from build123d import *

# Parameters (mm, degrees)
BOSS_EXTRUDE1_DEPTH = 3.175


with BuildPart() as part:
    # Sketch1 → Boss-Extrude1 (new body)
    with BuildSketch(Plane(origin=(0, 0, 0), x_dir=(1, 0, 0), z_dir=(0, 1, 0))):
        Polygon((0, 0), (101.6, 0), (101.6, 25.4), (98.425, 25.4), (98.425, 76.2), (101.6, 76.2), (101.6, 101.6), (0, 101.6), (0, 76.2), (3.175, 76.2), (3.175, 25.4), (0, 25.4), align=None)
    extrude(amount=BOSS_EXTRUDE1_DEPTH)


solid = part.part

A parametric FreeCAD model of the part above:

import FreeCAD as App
import Part
import Sketcher
Q = App.Units.Quantity


def add_polygon(sketch, points):
    """Adds a closed chain of lines whose ends are joined by coincident constraints."""
    first, n = sketch.GeometryCount, len(points)
    for a, b in zip(points, points[1:] + points[:1]):
        sketch.addGeometry(Part.LineSegment(App.Vector(*a, 0), App.Vector(*b, 0)), False)
    for i in range(n):
        sketch.addConstraint(Sketcher.Constraint("Coincident", first + i, 2, first + (i + 1) % n, 1))

doc = App.newDocument("Part")
body = doc.addObject("PartDesign::Body", "Body")

# Sketch on XZ plane
sketch1 = body.newObject("Sketcher::SketchObject", "Sketch")
sketch1.AttachmentSupport = (doc.getObject("XZ_Plane"), [""])
sketch1.MapMode = "FlatFace"
add_polygon(sketch1, [(0, 0), (101.6, 0), (101.6, -25.4), (98.4, -25.4), (98.4, -76.2), (101.6, -76.2), (101.6, -101.6), (0, -101.6), (0, -76.2), (3.2, -76.2), (3.2, -25.4), (0, -25.4)])  # lines 0-11
sketch1.addConstraint([
    Sketcher.Constraint("Horizontal", 0),
    Sketcher.Constraint("Vertical", 1),
    Sketcher.Constraint("Horizontal", 2),
    Sketcher.Constraint("Vertical", 3),
    Sketcher.Constraint("Horizontal", 4),
    Sketcher.Constraint("Vertical", 5),
    Sketcher.Constraint("Horizontal", 6),
    Sketcher.Constraint("Vertical", 7),
    Sketcher.Constraint("Horizontal", 8),
    Sketcher.Constraint("Vertical", 9),
    Sketcher.Constraint("Horizontal", 10),
    Sketcher.Constraint("Vertical", 11),
    Sketcher.Constraint("Coincident", 11, 2, -1, 1),
    Sketcher.Constraint("PointOnObject", 6, 2, -2),
    Sketcher.Constraint("Horizontal", 4, 2, 7, 2),
    Sketcher.Constraint("Horizontal", 2, 2, 9, 2),
    Sketcher.Constraint("Vertical", 1, 2, 4, 2),
    Sketcher.Constraint("Equal", 4, 8),
    Sketcher.Constraint("Equal", 1, 5),
    Sketcher.Constraint("DistanceX", 0, 1, 0, 2, Q("4 in")),
    Sketcher.Constraint("DistanceY", 1, 2, 1, 1, Q("1 in")),
    Sketcher.Constraint("DistanceY", 3, 2, 3, 1, Q("2 in")),
    Sketcher.Constraint("DistanceX", 2, 2, 2, 1, Q("0.125 in")),
])
pad1 = body.newObject("PartDesign::Pad", "Pad")
pad1.Profile = sketch1
pad1.Length = Q("0.125 in")
pad1.Reversed = True

doc.recompute()
